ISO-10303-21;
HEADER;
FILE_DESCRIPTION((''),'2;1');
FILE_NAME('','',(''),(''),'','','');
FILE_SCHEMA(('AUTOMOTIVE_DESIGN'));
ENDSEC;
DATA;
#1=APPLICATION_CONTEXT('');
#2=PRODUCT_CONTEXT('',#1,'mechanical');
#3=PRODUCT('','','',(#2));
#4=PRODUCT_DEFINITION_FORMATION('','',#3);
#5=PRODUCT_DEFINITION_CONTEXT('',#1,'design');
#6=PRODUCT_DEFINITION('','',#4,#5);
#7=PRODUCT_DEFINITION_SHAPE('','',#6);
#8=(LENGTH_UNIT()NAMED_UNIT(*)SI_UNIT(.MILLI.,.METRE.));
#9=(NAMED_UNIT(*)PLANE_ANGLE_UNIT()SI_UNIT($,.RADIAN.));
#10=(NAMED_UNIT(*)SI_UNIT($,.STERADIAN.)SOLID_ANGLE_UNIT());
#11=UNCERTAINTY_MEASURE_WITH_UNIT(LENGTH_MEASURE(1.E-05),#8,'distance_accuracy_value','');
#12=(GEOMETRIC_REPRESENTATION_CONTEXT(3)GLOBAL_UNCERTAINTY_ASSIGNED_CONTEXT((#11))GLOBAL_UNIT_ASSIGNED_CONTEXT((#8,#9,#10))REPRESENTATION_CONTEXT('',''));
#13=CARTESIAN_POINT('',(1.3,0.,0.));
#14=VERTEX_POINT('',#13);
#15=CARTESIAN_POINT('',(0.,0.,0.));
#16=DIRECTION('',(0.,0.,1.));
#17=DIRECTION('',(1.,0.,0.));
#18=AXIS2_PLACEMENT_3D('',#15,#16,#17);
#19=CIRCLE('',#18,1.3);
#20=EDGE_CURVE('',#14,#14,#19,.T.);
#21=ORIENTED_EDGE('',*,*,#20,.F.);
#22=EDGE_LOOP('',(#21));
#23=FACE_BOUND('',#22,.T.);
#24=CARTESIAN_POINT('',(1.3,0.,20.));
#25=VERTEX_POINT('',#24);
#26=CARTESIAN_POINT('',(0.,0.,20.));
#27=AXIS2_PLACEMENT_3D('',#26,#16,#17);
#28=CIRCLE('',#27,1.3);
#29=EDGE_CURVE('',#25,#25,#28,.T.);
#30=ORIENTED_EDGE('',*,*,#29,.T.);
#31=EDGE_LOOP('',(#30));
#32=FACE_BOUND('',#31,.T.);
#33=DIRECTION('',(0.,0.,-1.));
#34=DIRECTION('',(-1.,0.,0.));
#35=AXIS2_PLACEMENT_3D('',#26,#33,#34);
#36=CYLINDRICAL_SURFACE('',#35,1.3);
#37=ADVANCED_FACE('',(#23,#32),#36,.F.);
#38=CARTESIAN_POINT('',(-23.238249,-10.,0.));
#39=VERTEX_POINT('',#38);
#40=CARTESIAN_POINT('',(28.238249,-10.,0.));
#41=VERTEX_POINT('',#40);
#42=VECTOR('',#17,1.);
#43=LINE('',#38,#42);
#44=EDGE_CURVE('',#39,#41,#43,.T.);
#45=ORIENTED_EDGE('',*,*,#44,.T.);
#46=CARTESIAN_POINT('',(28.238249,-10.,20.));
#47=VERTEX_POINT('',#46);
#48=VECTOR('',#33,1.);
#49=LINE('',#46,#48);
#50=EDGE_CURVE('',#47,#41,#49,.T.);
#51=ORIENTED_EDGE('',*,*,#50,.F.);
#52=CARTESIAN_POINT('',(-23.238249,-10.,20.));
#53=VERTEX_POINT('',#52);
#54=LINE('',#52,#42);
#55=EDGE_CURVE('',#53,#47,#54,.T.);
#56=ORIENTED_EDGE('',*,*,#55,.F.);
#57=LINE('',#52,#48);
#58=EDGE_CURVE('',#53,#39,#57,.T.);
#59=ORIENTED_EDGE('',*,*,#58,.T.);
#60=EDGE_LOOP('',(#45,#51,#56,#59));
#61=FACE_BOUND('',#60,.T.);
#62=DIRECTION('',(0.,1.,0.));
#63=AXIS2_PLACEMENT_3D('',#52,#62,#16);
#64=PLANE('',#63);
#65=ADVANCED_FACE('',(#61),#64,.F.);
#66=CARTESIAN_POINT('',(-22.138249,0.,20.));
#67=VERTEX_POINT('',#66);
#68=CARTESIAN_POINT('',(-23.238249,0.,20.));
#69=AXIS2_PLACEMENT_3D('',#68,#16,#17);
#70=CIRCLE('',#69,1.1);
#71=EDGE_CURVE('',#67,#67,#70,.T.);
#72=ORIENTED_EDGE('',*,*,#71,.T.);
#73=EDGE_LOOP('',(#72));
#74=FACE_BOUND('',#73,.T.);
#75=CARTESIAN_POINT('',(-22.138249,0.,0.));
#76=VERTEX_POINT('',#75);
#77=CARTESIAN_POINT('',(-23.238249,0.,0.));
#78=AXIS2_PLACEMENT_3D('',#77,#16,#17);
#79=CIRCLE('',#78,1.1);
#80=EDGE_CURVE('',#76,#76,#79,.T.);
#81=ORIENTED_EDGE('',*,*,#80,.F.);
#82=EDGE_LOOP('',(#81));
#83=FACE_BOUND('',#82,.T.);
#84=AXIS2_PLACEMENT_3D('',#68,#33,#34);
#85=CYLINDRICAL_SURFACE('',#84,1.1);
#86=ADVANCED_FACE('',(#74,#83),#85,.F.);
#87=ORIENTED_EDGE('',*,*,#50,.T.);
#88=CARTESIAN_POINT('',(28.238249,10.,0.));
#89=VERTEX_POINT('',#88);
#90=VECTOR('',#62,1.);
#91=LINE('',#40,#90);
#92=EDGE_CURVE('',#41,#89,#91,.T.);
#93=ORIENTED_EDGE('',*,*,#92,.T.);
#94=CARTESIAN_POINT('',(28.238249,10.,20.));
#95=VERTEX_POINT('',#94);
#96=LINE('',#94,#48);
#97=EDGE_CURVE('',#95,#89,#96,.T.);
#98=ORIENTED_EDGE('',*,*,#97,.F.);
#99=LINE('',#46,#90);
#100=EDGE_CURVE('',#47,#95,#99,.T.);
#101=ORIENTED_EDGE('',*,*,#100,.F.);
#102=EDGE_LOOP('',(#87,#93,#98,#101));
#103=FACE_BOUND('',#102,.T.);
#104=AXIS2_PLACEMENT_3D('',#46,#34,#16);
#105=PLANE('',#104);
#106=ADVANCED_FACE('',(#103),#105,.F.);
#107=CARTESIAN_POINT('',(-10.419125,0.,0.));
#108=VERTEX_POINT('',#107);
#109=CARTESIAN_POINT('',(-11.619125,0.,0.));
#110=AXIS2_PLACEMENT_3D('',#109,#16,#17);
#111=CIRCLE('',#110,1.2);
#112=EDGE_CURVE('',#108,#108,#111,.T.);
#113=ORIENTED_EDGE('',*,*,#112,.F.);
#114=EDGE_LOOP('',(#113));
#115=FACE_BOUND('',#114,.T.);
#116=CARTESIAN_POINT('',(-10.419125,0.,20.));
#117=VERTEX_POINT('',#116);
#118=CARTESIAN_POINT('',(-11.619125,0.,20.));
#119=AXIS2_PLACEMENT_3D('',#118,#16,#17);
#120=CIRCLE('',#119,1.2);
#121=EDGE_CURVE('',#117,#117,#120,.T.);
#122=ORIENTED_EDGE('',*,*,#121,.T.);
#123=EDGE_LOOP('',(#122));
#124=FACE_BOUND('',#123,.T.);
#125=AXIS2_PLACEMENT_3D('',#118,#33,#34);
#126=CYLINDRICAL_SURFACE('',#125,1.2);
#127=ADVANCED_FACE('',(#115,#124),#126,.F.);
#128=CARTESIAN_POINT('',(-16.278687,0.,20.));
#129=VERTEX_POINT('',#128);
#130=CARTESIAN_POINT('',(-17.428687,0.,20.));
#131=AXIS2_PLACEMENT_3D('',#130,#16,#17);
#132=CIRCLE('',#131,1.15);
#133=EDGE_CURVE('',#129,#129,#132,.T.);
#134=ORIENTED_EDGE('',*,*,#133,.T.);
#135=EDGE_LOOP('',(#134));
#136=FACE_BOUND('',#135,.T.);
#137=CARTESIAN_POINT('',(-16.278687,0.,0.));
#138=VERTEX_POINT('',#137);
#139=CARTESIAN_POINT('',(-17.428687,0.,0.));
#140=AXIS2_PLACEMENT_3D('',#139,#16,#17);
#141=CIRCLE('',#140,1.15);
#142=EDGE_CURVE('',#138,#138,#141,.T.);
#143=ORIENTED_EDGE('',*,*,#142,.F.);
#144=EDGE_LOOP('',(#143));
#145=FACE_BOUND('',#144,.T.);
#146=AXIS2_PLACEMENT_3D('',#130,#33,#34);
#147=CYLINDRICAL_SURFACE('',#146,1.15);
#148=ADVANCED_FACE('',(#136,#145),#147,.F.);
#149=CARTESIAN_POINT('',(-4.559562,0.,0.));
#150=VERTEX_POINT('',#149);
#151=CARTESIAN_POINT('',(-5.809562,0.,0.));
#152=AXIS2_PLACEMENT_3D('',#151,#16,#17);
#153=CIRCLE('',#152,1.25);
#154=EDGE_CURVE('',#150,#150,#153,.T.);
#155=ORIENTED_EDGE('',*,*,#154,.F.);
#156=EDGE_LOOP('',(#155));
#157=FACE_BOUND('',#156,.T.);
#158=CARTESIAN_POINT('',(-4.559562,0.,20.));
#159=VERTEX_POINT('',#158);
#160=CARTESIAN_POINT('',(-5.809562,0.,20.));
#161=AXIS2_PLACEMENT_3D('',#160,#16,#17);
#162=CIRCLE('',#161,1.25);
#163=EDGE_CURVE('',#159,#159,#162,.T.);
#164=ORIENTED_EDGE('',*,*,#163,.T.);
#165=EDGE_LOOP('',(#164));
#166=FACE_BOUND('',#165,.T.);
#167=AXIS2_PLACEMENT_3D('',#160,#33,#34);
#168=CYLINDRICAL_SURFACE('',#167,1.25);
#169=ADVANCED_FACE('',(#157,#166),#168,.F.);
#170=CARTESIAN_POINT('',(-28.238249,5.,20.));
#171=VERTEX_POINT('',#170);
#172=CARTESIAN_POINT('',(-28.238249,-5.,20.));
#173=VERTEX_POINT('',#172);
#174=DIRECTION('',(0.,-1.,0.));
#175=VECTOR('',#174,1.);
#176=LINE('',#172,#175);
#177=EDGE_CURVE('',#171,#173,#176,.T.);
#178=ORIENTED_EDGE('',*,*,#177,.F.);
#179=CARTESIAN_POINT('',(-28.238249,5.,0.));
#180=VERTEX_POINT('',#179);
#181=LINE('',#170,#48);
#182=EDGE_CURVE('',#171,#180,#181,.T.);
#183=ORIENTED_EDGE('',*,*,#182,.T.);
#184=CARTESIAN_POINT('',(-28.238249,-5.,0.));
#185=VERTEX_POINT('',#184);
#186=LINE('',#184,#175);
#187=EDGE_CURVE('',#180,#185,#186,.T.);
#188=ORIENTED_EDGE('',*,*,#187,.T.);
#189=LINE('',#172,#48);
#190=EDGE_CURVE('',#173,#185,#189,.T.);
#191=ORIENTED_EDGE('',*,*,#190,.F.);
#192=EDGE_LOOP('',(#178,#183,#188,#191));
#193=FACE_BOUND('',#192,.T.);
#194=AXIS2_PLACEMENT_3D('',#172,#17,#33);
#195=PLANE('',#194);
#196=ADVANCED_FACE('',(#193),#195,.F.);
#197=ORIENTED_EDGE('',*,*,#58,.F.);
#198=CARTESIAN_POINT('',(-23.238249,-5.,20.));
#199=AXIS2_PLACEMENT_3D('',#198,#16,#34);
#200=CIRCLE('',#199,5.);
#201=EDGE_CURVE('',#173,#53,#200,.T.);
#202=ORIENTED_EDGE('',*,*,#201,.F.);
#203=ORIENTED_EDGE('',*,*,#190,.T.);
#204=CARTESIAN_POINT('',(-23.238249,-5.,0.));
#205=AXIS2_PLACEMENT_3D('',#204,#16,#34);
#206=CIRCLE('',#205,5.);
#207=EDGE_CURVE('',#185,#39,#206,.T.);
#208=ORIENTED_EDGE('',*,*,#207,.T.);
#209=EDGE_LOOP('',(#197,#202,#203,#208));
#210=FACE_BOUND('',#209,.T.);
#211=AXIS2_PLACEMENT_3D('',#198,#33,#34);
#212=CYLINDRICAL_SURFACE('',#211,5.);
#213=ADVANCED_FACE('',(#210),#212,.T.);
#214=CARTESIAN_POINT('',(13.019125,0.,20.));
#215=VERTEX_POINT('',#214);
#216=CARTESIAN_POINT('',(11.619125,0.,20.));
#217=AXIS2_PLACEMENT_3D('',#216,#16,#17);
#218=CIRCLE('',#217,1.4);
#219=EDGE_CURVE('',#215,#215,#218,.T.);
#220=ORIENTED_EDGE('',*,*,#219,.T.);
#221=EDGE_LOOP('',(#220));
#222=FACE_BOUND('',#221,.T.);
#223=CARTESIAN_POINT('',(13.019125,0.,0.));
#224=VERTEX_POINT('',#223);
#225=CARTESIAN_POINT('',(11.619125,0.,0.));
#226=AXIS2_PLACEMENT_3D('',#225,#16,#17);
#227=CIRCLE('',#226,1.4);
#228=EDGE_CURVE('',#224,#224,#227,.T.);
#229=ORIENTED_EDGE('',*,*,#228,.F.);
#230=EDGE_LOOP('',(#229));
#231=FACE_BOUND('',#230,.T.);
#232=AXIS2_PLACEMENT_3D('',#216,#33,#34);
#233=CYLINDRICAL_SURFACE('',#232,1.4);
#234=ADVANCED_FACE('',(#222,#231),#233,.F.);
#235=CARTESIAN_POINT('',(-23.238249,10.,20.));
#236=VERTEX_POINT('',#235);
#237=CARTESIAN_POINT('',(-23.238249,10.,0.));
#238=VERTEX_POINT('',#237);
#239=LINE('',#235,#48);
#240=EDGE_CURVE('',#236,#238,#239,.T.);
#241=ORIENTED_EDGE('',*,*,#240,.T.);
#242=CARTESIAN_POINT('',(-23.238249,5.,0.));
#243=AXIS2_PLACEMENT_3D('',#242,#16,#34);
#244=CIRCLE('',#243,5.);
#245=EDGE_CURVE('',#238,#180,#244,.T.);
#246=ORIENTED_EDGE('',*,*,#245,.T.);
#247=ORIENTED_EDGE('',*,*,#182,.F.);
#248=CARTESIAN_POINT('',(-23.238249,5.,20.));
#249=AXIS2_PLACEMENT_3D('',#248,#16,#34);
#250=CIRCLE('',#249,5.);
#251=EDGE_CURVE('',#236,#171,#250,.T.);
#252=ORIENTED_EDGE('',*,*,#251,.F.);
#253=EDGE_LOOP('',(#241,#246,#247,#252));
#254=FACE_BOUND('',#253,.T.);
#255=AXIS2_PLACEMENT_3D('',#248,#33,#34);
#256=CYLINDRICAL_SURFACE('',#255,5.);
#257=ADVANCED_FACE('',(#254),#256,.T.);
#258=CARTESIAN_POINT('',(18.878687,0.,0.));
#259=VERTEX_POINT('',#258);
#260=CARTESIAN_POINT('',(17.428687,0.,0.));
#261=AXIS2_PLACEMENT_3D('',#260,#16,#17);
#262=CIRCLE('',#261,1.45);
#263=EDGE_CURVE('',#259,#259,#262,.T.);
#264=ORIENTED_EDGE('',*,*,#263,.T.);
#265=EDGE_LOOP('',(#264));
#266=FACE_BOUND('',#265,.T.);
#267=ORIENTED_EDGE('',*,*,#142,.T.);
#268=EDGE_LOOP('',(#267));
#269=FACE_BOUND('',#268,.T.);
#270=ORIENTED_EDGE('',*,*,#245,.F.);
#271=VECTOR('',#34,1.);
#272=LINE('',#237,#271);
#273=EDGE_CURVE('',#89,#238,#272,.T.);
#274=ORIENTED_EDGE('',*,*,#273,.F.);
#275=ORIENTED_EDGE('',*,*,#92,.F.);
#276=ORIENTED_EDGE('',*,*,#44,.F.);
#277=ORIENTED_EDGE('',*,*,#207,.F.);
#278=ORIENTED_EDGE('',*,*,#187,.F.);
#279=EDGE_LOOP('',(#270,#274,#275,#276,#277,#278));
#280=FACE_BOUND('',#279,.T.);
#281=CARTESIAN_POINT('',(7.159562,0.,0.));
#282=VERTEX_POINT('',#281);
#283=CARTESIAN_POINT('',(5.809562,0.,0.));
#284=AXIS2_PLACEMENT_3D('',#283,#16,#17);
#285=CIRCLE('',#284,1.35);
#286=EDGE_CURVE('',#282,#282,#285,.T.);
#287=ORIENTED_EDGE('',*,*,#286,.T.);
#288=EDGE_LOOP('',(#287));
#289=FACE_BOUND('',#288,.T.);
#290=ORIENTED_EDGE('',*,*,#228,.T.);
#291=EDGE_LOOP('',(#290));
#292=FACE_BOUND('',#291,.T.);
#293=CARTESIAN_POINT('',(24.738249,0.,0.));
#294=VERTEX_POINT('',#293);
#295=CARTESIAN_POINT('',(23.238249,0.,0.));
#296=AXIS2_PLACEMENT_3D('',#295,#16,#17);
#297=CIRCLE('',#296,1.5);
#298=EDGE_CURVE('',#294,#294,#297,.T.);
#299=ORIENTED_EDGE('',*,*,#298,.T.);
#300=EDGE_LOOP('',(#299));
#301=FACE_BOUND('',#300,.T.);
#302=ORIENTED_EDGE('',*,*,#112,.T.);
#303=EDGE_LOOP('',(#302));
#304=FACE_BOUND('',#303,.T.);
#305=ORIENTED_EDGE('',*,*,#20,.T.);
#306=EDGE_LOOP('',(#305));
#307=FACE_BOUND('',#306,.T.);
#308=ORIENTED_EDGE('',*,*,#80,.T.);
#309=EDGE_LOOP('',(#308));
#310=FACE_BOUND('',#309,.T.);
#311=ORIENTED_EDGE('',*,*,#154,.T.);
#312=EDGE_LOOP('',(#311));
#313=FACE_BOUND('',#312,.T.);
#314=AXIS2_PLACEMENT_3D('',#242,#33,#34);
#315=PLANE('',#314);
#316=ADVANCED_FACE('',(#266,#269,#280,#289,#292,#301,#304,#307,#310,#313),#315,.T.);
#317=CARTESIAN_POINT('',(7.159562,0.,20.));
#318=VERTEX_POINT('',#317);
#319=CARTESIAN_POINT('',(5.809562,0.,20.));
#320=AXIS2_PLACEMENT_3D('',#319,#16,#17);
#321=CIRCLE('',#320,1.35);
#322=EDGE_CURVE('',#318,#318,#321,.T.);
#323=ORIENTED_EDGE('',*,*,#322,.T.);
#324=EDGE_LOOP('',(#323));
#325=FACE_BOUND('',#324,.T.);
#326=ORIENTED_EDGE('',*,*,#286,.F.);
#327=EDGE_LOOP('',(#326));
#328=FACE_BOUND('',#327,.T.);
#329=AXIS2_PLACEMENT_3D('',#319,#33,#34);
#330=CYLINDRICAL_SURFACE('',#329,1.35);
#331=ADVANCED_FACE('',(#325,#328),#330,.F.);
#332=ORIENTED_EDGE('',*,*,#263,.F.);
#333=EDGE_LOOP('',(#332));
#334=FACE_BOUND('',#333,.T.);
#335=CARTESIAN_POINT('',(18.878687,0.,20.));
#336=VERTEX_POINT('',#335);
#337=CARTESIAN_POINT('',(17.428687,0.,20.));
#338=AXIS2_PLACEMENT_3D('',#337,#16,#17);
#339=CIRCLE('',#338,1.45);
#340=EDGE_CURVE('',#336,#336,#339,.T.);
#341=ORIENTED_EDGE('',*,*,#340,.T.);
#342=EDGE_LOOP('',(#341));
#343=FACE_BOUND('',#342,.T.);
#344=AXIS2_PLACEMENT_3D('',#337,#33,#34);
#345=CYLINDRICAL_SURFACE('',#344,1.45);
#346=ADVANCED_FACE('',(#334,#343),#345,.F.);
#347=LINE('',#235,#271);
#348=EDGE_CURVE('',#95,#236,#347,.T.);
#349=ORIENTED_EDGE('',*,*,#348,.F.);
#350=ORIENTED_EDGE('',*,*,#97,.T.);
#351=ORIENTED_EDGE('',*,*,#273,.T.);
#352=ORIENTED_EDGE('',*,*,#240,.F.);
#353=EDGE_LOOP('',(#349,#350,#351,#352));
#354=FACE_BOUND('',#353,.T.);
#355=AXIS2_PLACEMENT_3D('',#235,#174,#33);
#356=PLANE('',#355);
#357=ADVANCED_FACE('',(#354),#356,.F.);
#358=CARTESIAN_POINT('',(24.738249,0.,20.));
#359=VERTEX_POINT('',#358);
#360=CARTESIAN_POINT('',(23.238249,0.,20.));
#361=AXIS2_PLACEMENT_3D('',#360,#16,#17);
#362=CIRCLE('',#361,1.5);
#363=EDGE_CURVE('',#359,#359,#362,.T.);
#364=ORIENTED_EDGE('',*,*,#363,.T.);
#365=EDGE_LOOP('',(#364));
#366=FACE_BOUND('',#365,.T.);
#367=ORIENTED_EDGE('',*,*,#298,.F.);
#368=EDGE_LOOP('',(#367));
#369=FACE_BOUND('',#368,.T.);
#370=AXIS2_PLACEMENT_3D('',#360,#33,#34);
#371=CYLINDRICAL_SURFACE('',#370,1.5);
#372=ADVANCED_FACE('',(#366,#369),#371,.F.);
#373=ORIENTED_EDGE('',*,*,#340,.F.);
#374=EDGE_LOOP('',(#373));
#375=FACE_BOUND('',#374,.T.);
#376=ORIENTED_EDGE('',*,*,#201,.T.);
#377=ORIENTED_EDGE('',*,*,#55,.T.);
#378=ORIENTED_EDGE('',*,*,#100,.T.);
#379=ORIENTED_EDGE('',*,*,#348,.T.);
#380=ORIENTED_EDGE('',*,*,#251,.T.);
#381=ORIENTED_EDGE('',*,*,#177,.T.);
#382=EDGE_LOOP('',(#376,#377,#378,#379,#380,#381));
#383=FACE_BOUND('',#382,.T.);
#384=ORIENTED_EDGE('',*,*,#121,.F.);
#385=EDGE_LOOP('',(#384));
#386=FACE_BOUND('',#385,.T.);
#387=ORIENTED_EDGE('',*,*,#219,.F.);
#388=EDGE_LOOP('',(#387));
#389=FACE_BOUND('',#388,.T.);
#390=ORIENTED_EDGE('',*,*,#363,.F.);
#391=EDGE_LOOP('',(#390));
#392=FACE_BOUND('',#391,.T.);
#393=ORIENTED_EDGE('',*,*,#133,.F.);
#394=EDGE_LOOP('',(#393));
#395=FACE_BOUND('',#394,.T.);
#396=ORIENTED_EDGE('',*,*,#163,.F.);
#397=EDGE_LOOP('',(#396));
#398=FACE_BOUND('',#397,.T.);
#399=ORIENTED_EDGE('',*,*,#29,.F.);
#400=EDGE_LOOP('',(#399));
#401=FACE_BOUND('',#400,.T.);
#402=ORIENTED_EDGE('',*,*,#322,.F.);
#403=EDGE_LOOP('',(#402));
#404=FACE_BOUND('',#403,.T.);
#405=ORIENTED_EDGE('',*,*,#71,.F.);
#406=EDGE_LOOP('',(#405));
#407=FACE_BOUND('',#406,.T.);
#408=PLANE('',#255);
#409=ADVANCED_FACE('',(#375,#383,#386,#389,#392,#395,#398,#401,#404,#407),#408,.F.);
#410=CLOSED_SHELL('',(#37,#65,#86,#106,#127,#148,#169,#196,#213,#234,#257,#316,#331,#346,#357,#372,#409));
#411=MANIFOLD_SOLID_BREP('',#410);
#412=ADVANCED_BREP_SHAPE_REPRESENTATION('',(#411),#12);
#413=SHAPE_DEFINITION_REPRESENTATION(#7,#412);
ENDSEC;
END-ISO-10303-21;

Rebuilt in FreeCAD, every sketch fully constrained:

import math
import FreeCAD as App
import Part
import Sketcher
from FreeCAD import Vector

doc = App.newDocument("Part")
body = doc.addObject("PartDesign::Body", "Body")

sketch1 = body.newObject("Sketcher::SketchObject", "Sketch")
sketch1.AttachmentSupport = (doc.getObject("XY_Plane"), [""])
sketch1.MapMode = "FlatFace"
sketch1.addGeometry([
    Part.LineSegment(Vector(-23.2, -10, 0), Vector(28.2, -10, 0)),
    Part.LineSegment(Vector(28.2, -10, 0), Vector(28.2, 10, 0)),
    Part.LineSegment(Vector(28.2, 10, 0), Vector(-23.2, 10, 0)),
    Part.ArcOfCircle(Part.Circle(Vector(-23.2, 5, 0), Vector(0, 0, 1), 5), math.radians(90), math.radians(180)),
    Part.LineSegment(Vector(-28.2, 5, 0), Vector(-28.2, -5, 0)),
    Part.ArcOfCircle(Part.Circle(Vector(-23.2, -5, 0), Vector(0, 0, 1), 5), math.radians(180), math.radians(270)),
    Part.Circle(Vector(-23.2, 0, 0), Vector(0, 0, 1), 1.1),
    Part.Circle(Vector(-17.4, 0, 0), Vector(0, 0, 1), 1.1),
    Part.Circle(Vector(-11.6, 0, 0), Vector(0, 0, 1), 1.2),
    Part.Circle(Vector(-5.8, 0, 0), Vector(0, 0, 1), 1.2),
    Part.Circle(Vector(0, 0, 0), Vector(0, 0, 1), 1.3),
    Part.Circle(Vector(5.8, 0, 0), Vector(0, 0, 1), 1.4),
    Part.Circle(Vector(11.6, 0, 0), Vector(0, 0, 1), 1.4),
    Part.Circle(Vector(17.4, 0, 0), Vector(0, 0, 1), 1.4),
    Part.Circle(Vector(23.2, 0, 0), Vector(0, 0, 1), 1.5),
], False)
sketch1.addConstraint([
    Sketcher.Constraint("Coincident", 0, 2, 1, 1),
    Sketcher.Constraint("Coincident", 1, 2, 2, 1),
    Sketcher.Constraint("Tangent", 2, 2, 3, 1),
    Sketcher.Constraint("Tangent", 3, 2, 4, 1),
    Sketcher.Constraint("Tangent", 4, 2, 5, 1),
    Sketcher.Constraint("Tangent", 5, 2, 0, 1),
    Sketcher.Constraint("Horizontal", 0),
    Sketcher.Constraint("Vertical", 1),
    Sketcher.Constraint("Horizontal", 2),
    Sketcher.Constraint("Vertical", 4),
    Sketcher.Constraint("Coincident", 10, 3, -1, 1),
    Sketcher.Constraint("Equal", 3, 5),
    Sketcher.Constraint("Symmetric", 9, 3, 11, 3, -1, 1),
    Sketcher.Constraint("Symmetric", 8, 3, 12, 3, -1, 1),
    Sketcher.Constraint("Symmetric", 7, 3, 13, 3, -1, 1),
    Sketcher.Constraint("Symmetric", 6, 3, 14, 3, -1, 1),
    Sketcher.Constraint("PointOnObject", 6, 3, -1),
    Sketcher.Constraint("PointOnObject", 7, 3, -1),
    Sketcher.Constraint("PointOnObject", 8, 3, -1),
    Sketcher.Constraint("PointOnObject", 9, 3, -1),
    Sketcher.Constraint("Vertical", 5, 3, 6, 3),
    Sketcher.Constraint("Diameter", 14, 3.0),
    Sketcher.Constraint("Radius", 3, 5.0),
    Sketcher.Constraint("Diameter", 6, 2.2),
    Sketcher.Constraint("Diameter", 7, 2.3),
    Sketcher.Constraint("Diameter", 8, 2.4),
    Sketcher.Constraint("Diameter", 9, 2.5),
    Sketcher.Constraint("Diameter", 10, 2.6),
    Sketcher.Constraint("Diameter", 11, 2.7),
    Sketcher.Constraint("Diameter", 12, 2.8),
    Sketcher.Constraint("Diameter", 13, 2.9),
    Sketcher.Constraint("DistanceY", 1, 1, 1, 2, 20.0),
    Sketcher.Constraint("DistanceY", -1, 1, 3, 3, 5.0),
    Sketcher.Constraint("DistanceX", 14, 3, 0, 2, 5.0),
    Sketcher.Constraint("DistanceX", 0, 1, 0, 2, 51.476498),
    Sketcher.Constraint("DistanceX", 7, 3, 11, 3, 23.238249),
    Sketcher.Constraint("DistanceX", 6, 3, 11, 3, 29.047811),
    Sketcher.Constraint("DistanceX", 8, 3, 12, 3, 23.238249),
])
pad1 = body.newObject("PartDesign::Pad", "Pad")
pad1.Profile = sketch1
pad1.Length = 20

doc.recompute()
